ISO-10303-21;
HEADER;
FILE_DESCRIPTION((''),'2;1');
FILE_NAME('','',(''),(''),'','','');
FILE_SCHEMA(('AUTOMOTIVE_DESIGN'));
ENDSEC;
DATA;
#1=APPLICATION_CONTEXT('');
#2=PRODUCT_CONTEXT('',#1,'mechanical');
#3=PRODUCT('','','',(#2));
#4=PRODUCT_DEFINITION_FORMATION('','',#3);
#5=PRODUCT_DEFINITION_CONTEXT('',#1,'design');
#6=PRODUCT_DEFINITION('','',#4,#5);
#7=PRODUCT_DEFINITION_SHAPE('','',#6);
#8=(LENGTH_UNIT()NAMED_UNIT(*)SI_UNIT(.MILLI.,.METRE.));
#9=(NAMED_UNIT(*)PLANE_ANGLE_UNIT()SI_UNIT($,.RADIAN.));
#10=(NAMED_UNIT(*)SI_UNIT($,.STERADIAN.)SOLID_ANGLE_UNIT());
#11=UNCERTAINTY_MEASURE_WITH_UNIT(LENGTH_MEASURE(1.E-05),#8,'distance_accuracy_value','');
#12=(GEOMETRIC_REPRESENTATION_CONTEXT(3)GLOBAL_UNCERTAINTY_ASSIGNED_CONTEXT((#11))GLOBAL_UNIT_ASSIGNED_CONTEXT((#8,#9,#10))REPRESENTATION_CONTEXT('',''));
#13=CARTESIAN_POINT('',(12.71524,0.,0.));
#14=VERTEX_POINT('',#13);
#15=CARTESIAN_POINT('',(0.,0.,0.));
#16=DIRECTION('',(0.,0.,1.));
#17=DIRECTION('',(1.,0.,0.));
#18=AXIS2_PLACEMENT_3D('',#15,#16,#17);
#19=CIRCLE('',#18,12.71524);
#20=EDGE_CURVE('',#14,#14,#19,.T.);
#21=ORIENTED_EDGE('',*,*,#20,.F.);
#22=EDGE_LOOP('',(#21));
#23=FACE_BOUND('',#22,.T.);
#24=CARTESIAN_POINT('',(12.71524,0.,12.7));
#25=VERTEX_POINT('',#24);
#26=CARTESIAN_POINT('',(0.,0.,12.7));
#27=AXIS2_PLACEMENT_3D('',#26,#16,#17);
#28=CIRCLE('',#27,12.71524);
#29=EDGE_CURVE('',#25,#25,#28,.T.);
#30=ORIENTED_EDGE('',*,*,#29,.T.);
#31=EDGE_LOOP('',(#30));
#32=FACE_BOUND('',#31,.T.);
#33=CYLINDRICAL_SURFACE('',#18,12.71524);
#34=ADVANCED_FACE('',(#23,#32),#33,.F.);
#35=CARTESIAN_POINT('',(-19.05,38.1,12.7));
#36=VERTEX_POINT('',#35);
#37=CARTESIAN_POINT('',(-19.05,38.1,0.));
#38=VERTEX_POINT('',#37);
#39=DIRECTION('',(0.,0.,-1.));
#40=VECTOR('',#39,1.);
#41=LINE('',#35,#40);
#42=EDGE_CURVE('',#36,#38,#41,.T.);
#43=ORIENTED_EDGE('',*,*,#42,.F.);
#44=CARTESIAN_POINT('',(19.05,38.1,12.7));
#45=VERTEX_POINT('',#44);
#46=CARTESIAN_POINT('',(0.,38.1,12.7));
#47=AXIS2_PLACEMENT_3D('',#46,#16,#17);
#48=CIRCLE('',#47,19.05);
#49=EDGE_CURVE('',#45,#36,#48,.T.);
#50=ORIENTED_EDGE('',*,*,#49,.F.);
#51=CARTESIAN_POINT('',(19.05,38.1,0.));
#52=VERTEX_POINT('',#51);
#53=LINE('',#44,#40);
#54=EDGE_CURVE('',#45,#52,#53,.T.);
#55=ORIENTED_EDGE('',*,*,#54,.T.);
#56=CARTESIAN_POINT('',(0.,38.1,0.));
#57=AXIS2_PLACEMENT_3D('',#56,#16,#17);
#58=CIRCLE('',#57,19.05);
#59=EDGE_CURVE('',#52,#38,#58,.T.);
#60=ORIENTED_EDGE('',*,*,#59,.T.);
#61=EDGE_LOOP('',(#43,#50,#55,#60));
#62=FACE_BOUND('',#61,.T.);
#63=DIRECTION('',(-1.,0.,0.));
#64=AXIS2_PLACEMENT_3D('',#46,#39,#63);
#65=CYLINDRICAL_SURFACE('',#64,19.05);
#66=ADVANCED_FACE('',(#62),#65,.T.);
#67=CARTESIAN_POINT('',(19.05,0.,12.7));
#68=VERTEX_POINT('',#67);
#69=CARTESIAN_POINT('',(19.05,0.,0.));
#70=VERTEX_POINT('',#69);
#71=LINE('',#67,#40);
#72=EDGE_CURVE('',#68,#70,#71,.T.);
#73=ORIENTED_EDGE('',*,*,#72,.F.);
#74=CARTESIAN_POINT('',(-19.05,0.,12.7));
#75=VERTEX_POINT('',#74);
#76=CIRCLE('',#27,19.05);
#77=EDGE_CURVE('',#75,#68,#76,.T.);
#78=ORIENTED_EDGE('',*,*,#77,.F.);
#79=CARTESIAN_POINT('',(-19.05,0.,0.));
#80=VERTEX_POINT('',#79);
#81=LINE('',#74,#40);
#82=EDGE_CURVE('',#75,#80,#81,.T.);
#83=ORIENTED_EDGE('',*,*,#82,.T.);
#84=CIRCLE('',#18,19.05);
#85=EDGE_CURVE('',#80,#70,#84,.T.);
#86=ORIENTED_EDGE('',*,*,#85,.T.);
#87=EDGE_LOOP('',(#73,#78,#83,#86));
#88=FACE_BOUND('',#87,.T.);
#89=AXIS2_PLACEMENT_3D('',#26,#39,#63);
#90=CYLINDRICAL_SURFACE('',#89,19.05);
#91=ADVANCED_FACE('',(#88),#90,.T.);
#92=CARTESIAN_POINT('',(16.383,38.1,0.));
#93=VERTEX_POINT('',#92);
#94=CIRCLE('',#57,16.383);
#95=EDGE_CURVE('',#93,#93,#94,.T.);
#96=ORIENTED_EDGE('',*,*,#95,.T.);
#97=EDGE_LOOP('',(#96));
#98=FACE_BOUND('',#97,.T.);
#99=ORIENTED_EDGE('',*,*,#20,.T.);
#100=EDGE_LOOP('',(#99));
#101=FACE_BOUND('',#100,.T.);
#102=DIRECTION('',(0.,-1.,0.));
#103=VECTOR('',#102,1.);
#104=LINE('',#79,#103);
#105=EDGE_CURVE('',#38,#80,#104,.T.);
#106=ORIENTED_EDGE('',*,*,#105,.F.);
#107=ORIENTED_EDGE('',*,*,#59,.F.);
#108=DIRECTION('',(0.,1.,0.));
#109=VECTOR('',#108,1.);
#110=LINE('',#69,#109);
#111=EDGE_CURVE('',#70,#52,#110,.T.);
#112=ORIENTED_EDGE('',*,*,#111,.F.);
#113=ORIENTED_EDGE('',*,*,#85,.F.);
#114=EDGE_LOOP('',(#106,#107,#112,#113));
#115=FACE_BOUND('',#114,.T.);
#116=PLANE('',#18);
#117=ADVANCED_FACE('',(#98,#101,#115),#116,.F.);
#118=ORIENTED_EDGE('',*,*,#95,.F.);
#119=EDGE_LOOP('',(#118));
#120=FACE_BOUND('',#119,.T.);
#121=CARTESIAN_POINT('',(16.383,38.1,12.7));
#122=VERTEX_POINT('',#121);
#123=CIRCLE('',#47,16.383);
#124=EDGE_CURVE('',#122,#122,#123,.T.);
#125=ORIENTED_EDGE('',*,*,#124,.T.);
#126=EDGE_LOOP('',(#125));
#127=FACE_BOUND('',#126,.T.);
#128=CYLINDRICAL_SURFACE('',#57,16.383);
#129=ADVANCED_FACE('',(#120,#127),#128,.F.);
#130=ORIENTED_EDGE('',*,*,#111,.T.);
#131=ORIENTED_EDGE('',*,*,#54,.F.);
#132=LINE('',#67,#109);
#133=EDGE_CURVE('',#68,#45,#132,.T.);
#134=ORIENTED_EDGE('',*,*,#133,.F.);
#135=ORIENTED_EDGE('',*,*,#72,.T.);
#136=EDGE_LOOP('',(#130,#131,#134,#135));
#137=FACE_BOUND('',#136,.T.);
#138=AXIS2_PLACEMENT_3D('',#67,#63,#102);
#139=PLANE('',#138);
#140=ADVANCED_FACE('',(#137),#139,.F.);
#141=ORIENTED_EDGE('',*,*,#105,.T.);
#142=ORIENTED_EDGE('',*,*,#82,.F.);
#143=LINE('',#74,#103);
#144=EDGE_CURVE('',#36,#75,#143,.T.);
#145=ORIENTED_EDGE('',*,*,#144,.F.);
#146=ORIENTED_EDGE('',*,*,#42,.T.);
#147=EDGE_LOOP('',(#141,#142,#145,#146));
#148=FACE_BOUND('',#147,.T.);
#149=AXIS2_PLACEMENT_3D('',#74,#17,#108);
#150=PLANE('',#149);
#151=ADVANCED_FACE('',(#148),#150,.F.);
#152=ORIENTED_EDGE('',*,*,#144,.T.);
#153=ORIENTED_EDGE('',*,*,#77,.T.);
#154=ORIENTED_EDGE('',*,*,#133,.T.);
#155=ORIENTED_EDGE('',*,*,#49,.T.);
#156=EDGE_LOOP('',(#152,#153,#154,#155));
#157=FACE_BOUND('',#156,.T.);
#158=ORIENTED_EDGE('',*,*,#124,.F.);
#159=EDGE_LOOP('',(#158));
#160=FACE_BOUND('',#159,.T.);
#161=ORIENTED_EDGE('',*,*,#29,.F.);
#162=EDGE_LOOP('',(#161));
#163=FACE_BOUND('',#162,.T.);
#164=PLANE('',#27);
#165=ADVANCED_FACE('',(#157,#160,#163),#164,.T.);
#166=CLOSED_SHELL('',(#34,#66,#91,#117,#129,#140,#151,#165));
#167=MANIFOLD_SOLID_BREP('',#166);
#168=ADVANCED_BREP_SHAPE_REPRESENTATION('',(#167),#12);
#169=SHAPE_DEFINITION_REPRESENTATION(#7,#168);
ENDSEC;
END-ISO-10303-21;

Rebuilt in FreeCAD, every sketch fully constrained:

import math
import FreeCAD as App
import Part
import Sketcher
Q = App.Units.Quantity

doc = App.newDocument("Part")
body = doc.addObject("PartDesign::Body", "Body")

# Sketch on XY plane
sketch1 = body.newObject("Sketcher::SketchObject", "Sketch")
sketch1.AttachmentSupport = (doc.getObject("XY_Plane"), [""])
sketch1.MapMode = "FlatFace"
sketch1.addGeometry([
    Part.LineSegment(App.Vector(-19, 38, 0), App.Vector(-19, 0, 0)),
    Part.ArcOfCircle(Part.Circle(App.Vector(0, 0, 0), App.Vector(0, 0, 1), 19), math.radians(180), math.radians(360)),
    Part.LineSegment(App.Vector(19, 0, 0), App.Vector(19, 38, 0)),
    Part.ArcOfCircle(Part.Circle(App.Vector(0, 38, 0), App.Vector(0, 0, 1), 19), math.radians(0), math.radians(180)),
], False)
sketch1.addConstraint([
    Sketcher.Constraint("Tangent", 0, 2, 1, 1),
    Sketcher.Constraint("Tangent", 1, 2, 2, 1),
    Sketcher.Constraint("Tangent", 2, 2, 3, 1),
    Sketcher.Constraint("Tangent", 3, 2, 0, 1),
    Sketcher.Constraint("Vertical", 0),
    Sketcher.Constraint("Vertical", 2),
    Sketcher.Constraint("Coincident", 1, 3, -1, 1),
    Sketcher.Constraint("Radius", 1, Q("0.75 in")),
    Sketcher.Constraint("DistanceY", 0, 2, 0, 1, Q("1.5 in")),
])
pad1 = body.newObject("PartDesign::Pad", "Pad")
pad1.Profile = sketch1
pad1.Length = Q("0.5 in")

# Sketch on XY plane
sketch2 = body.newObject("Sketcher::SketchObject", "Sketch001")
sketch2.AttachmentSupport = (doc.getObject("XY_Plane"), [""])
sketch2.MapMode = "FlatFace"
sketch2.AttachmentOffset = App.Placement(App.Vector(0, 0, 0.5 * 25.4), App.Rotation())
sketch2.addGeometry(Part.Circle(App.Vector(0, 0, 0), App.Vector(0, 0, 1), 13), False)
sketch2.addConstraint([
    Sketcher.Constraint("Coincident", 0, 3, -1, 1),
    Sketcher.Constraint("Diameter", 0, Q("1.0012 in")),
])
pocket1 = body.newObject("PartDesign::Pocket", "Pocket")
pocket1.Profile = sketch2
pocket1.Type = "ThroughAll"
pocket1.Midplane = True

# Sketch on XY plane
sketch3 = body.newObject("Sketcher::SketchObject", "Sketch002")
sketch3.AttachmentSupport = (doc.getObject("XY_Plane"), [""])
sketch3.MapMode = "FlatFace"
sketch3.AttachmentOffset = App.Placement(App.Vector(0, 0, 0.5 * 25.4), App.Rotation())
sketch3.addGeometry(Part.Circle(App.Vector(0, 38, 0), App.Vector(0, 0, 1), 16), False)
sketch3.addConstraint([
    Sketcher.Constraint("PointOnObject", 0, 3, -2),
    Sketcher.Constraint("Diameter", 0, Q("1.29 in")),
    Sketcher.Constraint("DistanceY", -1, 1, 0, 3, Q("1.5 in")),
])
pocket2 = body.newObject("PartDesign::Pocket", "Pocket001")
pocket2.Profile = sketch3
pocket2.Type = "ThroughAll"
pocket2.Midplane = True

doc.recompute()
